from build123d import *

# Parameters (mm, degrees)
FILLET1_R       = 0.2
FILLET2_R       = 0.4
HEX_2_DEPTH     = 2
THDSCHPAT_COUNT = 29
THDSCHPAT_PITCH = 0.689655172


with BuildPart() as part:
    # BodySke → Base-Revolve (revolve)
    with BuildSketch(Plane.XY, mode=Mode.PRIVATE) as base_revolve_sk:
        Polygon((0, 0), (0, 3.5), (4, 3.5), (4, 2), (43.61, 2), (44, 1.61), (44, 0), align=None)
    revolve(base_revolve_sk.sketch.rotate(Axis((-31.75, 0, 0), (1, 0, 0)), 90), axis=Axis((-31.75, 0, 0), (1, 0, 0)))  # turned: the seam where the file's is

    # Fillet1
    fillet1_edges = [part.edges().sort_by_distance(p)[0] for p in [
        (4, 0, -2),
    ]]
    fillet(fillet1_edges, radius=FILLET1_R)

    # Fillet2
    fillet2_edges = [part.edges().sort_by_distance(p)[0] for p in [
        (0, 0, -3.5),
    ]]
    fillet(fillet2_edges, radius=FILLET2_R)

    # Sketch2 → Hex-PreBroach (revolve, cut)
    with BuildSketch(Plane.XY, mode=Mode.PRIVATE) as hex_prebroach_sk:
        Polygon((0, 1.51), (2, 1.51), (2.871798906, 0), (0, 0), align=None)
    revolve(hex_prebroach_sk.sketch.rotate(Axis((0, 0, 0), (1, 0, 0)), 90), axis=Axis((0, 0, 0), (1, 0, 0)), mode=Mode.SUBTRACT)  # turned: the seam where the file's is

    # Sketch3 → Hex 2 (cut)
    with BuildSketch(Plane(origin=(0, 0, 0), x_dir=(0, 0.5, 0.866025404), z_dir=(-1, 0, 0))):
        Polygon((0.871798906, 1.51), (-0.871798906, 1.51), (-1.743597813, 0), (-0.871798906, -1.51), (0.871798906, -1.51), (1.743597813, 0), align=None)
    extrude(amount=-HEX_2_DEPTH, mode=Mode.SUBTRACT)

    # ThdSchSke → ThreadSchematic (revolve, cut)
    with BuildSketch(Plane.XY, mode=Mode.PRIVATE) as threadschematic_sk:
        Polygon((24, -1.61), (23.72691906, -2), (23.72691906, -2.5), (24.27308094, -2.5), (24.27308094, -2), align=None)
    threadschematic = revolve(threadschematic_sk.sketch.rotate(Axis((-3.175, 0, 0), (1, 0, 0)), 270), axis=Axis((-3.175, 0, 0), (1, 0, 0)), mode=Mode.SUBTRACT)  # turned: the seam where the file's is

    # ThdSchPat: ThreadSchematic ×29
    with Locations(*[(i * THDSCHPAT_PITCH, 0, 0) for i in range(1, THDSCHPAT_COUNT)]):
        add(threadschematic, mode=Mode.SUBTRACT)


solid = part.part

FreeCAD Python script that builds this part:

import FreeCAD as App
import Part
import Sketcher
Q = App.Units.Quantity


def edges_at(feature, points):
    """Names of the edges that pass closest to the given points."""
    edges = feature.Shape.Edges
    near = lambda p: min(range(len(edges)), key=lambda i: edges[i].distToShape(Part.Vertex(*p))[0])
    return sorted({f"Edge{near(p) + 1}" for p in points})

doc = App.newDocument("Part")
body = doc.addObject("PartDesign::Body", "Body")

sketch1 = body.newObject("Sketcher::SketchObject", "Sketch")
sketch1.AttachmentSupport = (doc.getObject("XY_Plane"), [""])
sketch1.MapMode = "FlatFace"
sketch1.addGeometry([
    Part.LineSegment(App.Vector(0, 3.5, 0), App.Vector(0, 0, 0)),
    Part.LineSegment(App.Vector(0, 0, 0), App.Vector(44, 0, 0)),
    Part.LineSegment(App.Vector(44, 0, 0), App.Vector(44, 1.61, 0)),
    Part.LineSegment(App.Vector(44, 1.61, 0), App.Vector(43.61, 2, 0)),
    Part.LineSegment(App.Vector(43.61, 2, 0), App.Vector(4, 2, 0)),
    Part.LineSegment(App.Vector(4, 2, 0), App.Vector(4, 3.5, 0)),
    Part.LineSegment(App.Vector(4, 3.5, 0), App.Vector(0, 3.5, 0)),
], False)
sketch1.addConstraint([
    Sketcher.Constraint("Coincident", 0, 2, 1, 1),
    Sketcher.Constraint("Coincident", 1, 2, 2, 1),
    Sketcher.Constraint("Coincident", 2, 2, 3, 1),
    Sketcher.Constraint("Coincident", 3, 2, 4, 1),
    Sketcher.Constraint("Coincident", 4, 2, 5, 1),
    Sketcher.Constraint("Coincident", 5, 2, 6, 1),
    Sketcher.Constraint("Coincident", 6, 2, 0, 1),
    Sketcher.Constraint("Vertical", 0),
    Sketcher.Constraint("Horizontal", 1),
    Sketcher.Constraint("Vertical", 2),
    Sketcher.Constraint("Horizontal", 4),
    Sketcher.Constraint("Vertical", 5),
    Sketcher.Constraint("Horizontal", 6),
    Sketcher.Constraint("Coincident", 0, 2, -1, 1),
    Sketcher.Constraint("DistanceX", 1, 1, 1, 2, 44.0),
    Sketcher.Constraint("DistanceX", 6, 2, 6, 1, 4.0),
    Sketcher.Constraint("Angle", 3, Q("135 deg")),
    Sketcher.Constraint("DistanceY", 0, 2, 0, 1, 3.5),
    Sketcher.Constraint("DistanceY", 5, 1, 5, 2, 1.5),
    Sketcher.Constraint("DistanceX", 4, 2, 4, 1, 39.61),
])
revolution = body.newObject("PartDesign::Revolution", "Revolution")
revolution.Profile = sketch1
revolution.ReferenceAxis = (sketch1, ["H_Axis"])
revolution.Angle = 360
doc.recompute()

fillet = body.newObject("PartDesign::Fillet", "Fillet")
fillet.Base = (revolution, edges_at(revolution, [(4, 0, -2)]))
fillet.Radius = 0.2
doc.recompute()

fillet2 = body.newObject("PartDesign::Fillet", "Fillet001")
fillet2.Base = (fillet, edges_at(fillet, [(0, 0, -3.5)]))
fillet2.Radius = 0.4

sketch2 = body.newObject("Sketcher::SketchObject", "Sketch001")
sketch2.AttachmentSupport = (doc.getObject("XY_Plane"), [""])
sketch2.MapMode = "FlatFace"
sketch2.addGeometry([
    Part.LineSegment(App.Vector(2, 1.51, 0), App.Vector(0, 1.51, 0)),
    Part.LineSegment(App.Vector(0, 1.51, 0), App.Vector(0, 0, 0)),
    Part.LineSegment(App.Vector(0, 0, 0), App.Vector(2.871799, 0, 0)),
    Part.LineSegment(App.Vector(2.871799, 0, 0), App.Vector(2, 1.51, 0)),
], False)
sketch2.addConstraint([
    Sketcher.Constraint("Coincident", 0, 2, 1, 1),
    Sketcher.Constraint("Coincident", 1, 2, 2, 1),
    Sketcher.Constraint("Coincident", 2, 2, 3, 1),
    Sketcher.Constraint("Coincident", 3, 2, 0, 1),
    Sketcher.Constraint("Horizontal", 0),
    Sketcher.Constraint("Vertical", 1),
    Sketcher.Constraint("Horizontal", 2),
    Sketcher.Constraint("Coincident", 1, 2, -1, 1),
    Sketcher.Constraint("DistanceX", 0, 2, 0, 1, 2.0),
    Sketcher.Constraint("Angle", 3, Q("120 deg")),
    Sketcher.Constraint("DistanceY", 1, 2, 1, 1, 1.51),
])
groove = body.newObject("PartDesign::Groove", "Groove")
groove.Profile = sketch2
groove.ReferenceAxis = (sketch2, ["H_Axis"])
groove.Angle = 360

sketch3 = body.newObject("Sketcher::SketchObject", "Sketch002")
sketch3.AttachmentSupport = (doc.getObject("YZ_Plane"), [""])
sketch3.MapMode = "FlatFace"
sketch3.addGeometry([
    Part.LineSegment(App.Vector(1.743598, 0, 0), App.Vector(0.871799, -1.51, 0)),
    Part.LineSegment(App.Vector(0.871799, -1.51, 0), App.Vector(-0.871799, -1.51, 0)),
    Part.LineSegment(App.Vector(-0.871799, -1.51, 0), App.Vector(-1.743598, 0, 0)),
    Part.LineSegment(App.Vector(-1.743598, 0, 0), App.Vector(-0.871799, 1.51, 0)),
    Part.LineSegment(App.Vector(-0.871799, 1.51, 0), App.Vector(0.871799, 1.51, 0)),
    Part.LineSegment(App.Vector(0.871799, 1.51, 0), App.Vector(1.743598, 0, 0)),
], False)
sketch3.addConstraint([
    Sketcher.Constraint("Coincident", 0, 2, 1, 1),
    Sketcher.Constraint("Coincident", 1, 2, 2, 1),
    Sketcher.Constraint("Coincident", 2, 2, 3, 1),
    Sketcher.Constraint("Coincident", 3, 2, 4, 1),
    Sketcher.Constraint("Coincident", 4, 2, 5, 1),
    Sketcher.Constraint("Coincident", 5, 2, 0, 1),
    Sketcher.Constraint("Horizontal", 1),
    Sketcher.Constraint("Horizontal", 4),
    Sketcher.Constraint("Symmetric", 0, 2, 3, 2, -1, 1),
    Sketcher.Constraint("Symmetric", 2, 2, 5, 2, -1, 1),
    Sketcher.Constraint("PointOnObject", 2, 2, -1),
    Sketcher.Constraint("Parallel", 2, 5),
    Sketcher.Constraint("Vertical", 1, 2, 3, 2),
    Sketcher.Constraint("Angle", 0, Q("-120 deg")),
    Sketcher.Constraint("DistanceY", 0, 2, -1, 1, 1.51),
    Sketcher.Constraint("DistanceX", -1, 1, 0, 2, 0.871799),
])
pocket1 = body.newObject("PartDesign::Pocket", "Pocket")
pocket1.Profile = sketch3
pocket1.Length = 2
pocket1.Reversed = True

sketch4 = body.newObject("Sketcher::SketchObject", "Sketch003")
sketch4.AttachmentSupport = (doc.getObject("XY_Plane"), [""])
sketch4.MapMode = "FlatFace"
sketch4.addGeometry([
    Part.LineSegment(App.Vector(24, -1.61, 0), App.Vector(23.726919, -2, 0)),
    Part.LineSegment(App.Vector(23.726919, -2, 0), App.Vector(23.726919, -2.5, 0)),
    Part.LineSegment(App.Vector(23.726919, -2.5, 0), App.Vector(24.273081, -2.5, 0)),
    Part.LineSegment(App.Vector(24.273081, -2.5, 0), App.Vector(24.273081, -2, 0)),
    Part.LineSegment(App.Vector(24.273081, -2, 0), App.Vector(24, -1.61, 0)),
], False)
sketch4.addConstraint([
    Sketcher.Constraint("Coincident", 0, 2, 1, 1),
    Sketcher.Constraint("Coincident", 1, 2, 2, 1),
    Sketcher.Constraint("Coincident", 2, 2, 3, 1),
    Sketcher.Constraint("Coincident", 3, 2, 4, 1),
    Sketcher.Constraint("Coincident", 4, 2, 0, 1),
    Sketcher.Constraint("Vertical", 1),
    Sketcher.Constraint("Horizontal", 2),
    Sketcher.Constraint("Vertical", 3),
    Sketcher.Constraint("Horizontal", 0, 2, 3, 2),
    Sketcher.Constraint("Equal", 0, 4),
    Sketcher.Constraint("Angle", 0, Q("-125 deg")),
    Sketcher.Constraint("DistanceY", 1, 2, 1, 1, 0.5),
    Sketcher.Constraint("DistanceY", 0, 2, -1, 1, 2.0),
    Sketcher.Constraint("DistanceX", -1, 1, 4, 2, 24.0),
    Sketcher.Constraint("DistanceY", 4, 2, -1, 1, 1.61),
])
groove2 = body.newObject("PartDesign::Groove", "Groove001")
groove2.Profile = sketch4
groove2.ReferenceAxis = (sketch4, ["H_Axis"])
groove2.Angle = 360
doc.recompute()

linearpattern = body.newObject("PartDesign::LinearPattern", "LinearPattern")
linearpattern.Originals = [groove2]
linearpattern.Direction = (doc.getObject("X_Axis"), [""])
linearpattern.Mode = "offset"
linearpattern.Offset = 0.689655
linearpattern.Occurrences = 29
body.Tip = linearpattern

doc.recompute()
